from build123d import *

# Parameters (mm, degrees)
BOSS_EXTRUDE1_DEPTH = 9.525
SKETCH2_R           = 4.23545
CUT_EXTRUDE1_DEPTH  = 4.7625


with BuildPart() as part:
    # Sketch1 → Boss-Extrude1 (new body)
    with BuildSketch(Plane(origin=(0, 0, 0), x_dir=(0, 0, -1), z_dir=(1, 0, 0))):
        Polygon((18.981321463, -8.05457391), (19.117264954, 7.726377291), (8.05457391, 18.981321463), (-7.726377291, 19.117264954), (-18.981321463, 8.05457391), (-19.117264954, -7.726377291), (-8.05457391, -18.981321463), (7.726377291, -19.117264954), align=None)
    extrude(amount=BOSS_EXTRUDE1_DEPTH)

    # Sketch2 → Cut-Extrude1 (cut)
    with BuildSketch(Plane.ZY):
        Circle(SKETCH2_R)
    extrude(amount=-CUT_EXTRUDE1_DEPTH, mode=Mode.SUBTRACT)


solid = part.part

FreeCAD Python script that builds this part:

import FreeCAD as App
import Part
import Sketcher
from FreeCAD import Vector
Q = App.Units.Quantity

doc = App.newDocument("Part")
body = doc.addObject("PartDesign::Body", "Body")

# Sketch on YZ plane
sketch1 = body.newObject("Sketcher::SketchObject", "Sketch")
sketch1.AttachmentSupport = (doc.getObject("YZ_Plane"), [""])
sketch1.MapMode = "FlatFace"
sketch1.addGeometry([
    Part.LineSegment(Vector(-8, -19, 0), Vector(8, -19, 0)),  # 0
    Part.LineSegment(Vector(8, -19, 0), Vector(19, -8, 0)),  # 1
    Part.LineSegment(Vector(19, -8, 0), Vector(19, 8, 0)),  # 2
    Part.LineSegment(Vector(19, 8, 0), Vector(8, 19, 0)),  # 3
    Part.LineSegment(Vector(8, 19, 0), Vector(-8, 19, 0)),  # 4
    Part.LineSegment(Vector(-8, 19, 0), Vector(-19, 8, 0)),  # 5
    Part.LineSegment(Vector(-19, 8, 0), Vector(-19, -8, 0)),  # 6
    Part.LineSegment(Vector(-19, -8, 0), Vector(-8, -19, 0)),  # 7
], False)
sketch1.addConstraint([
    Sketcher.Constraint("Coincident", 0, 2, 1, 1),
    Sketcher.Constraint("Coincident", 1, 2, 2, 1),
    Sketcher.Constraint("Coincident", 2, 2, 3, 1),
    Sketcher.Constraint("Coincident", 3, 2, 4, 1),
    Sketcher.Constraint("Coincident", 4, 2, 5, 1),
    Sketcher.Constraint("Coincident", 5, 2, 6, 1),
    Sketcher.Constraint("Coincident", 6, 2, 7, 1),
    Sketcher.Constraint("Coincident", 7, 2, 0, 1),
    Sketcher.Constraint("Symmetric", 0, 2, 4, 2, -1, 1),
    Sketcher.Constraint("Symmetric", 1, 2, 5, 2, -1, 1),
    Sketcher.Constraint("Symmetric", 2, 2, 6, 2, -1, 1),
    Sketcher.Constraint("Symmetric", 3, 2, 7, 2, -1, 1),
    Sketcher.Constraint("Perpendicular", 0, 2),
    Sketcher.Constraint("Perpendicular", 1, 3),
    Sketcher.Constraint("Equal", 0, 1),
    Sketcher.Constraint("Equal", 1, 2),
    Sketcher.Constraint("Equal", 2, 3),
    Sketcher.Constraint("DistanceX", 4, 2, 1, 2, 26.707699),
    Sketcher.Constraint("DistanceX", -1, 1, 1, 2, 18.981321),
    Sketcher.Constraint("DistanceY", 0, 2, 1, 2, 11.062691),
])
pad1 = body.newObject("PartDesign::Pad", "Pad")
pad1.Profile = sketch1
pad1.Length = Q("0.375 in")

# Sketch on YZ plane
sketch2 = body.newObject("Sketcher::SketchObject", "Sketch001")
sketch2.AttachmentSupport = (doc.getObject("YZ_Plane"), [""])
sketch2.MapMode = "FlatFace"
sketch2.addGeometry(Part.Circle(Vector(0, 0, 0), Vector(0, 0, 1), 4.2), False)
sketch2.addConstraint([
    Sketcher.Constraint("Coincident", 0, 3, -1, 1),
    Sketcher.Constraint("Diameter", 0, Q("0.3335 in")),
])
pocket1 = body.newObject("PartDesign::Pocket", "Pocket")
pocket1.Profile = sketch2
pocket1.Length = Q("0.1875 in")
pocket1.Reversed = True

doc.recompute()
